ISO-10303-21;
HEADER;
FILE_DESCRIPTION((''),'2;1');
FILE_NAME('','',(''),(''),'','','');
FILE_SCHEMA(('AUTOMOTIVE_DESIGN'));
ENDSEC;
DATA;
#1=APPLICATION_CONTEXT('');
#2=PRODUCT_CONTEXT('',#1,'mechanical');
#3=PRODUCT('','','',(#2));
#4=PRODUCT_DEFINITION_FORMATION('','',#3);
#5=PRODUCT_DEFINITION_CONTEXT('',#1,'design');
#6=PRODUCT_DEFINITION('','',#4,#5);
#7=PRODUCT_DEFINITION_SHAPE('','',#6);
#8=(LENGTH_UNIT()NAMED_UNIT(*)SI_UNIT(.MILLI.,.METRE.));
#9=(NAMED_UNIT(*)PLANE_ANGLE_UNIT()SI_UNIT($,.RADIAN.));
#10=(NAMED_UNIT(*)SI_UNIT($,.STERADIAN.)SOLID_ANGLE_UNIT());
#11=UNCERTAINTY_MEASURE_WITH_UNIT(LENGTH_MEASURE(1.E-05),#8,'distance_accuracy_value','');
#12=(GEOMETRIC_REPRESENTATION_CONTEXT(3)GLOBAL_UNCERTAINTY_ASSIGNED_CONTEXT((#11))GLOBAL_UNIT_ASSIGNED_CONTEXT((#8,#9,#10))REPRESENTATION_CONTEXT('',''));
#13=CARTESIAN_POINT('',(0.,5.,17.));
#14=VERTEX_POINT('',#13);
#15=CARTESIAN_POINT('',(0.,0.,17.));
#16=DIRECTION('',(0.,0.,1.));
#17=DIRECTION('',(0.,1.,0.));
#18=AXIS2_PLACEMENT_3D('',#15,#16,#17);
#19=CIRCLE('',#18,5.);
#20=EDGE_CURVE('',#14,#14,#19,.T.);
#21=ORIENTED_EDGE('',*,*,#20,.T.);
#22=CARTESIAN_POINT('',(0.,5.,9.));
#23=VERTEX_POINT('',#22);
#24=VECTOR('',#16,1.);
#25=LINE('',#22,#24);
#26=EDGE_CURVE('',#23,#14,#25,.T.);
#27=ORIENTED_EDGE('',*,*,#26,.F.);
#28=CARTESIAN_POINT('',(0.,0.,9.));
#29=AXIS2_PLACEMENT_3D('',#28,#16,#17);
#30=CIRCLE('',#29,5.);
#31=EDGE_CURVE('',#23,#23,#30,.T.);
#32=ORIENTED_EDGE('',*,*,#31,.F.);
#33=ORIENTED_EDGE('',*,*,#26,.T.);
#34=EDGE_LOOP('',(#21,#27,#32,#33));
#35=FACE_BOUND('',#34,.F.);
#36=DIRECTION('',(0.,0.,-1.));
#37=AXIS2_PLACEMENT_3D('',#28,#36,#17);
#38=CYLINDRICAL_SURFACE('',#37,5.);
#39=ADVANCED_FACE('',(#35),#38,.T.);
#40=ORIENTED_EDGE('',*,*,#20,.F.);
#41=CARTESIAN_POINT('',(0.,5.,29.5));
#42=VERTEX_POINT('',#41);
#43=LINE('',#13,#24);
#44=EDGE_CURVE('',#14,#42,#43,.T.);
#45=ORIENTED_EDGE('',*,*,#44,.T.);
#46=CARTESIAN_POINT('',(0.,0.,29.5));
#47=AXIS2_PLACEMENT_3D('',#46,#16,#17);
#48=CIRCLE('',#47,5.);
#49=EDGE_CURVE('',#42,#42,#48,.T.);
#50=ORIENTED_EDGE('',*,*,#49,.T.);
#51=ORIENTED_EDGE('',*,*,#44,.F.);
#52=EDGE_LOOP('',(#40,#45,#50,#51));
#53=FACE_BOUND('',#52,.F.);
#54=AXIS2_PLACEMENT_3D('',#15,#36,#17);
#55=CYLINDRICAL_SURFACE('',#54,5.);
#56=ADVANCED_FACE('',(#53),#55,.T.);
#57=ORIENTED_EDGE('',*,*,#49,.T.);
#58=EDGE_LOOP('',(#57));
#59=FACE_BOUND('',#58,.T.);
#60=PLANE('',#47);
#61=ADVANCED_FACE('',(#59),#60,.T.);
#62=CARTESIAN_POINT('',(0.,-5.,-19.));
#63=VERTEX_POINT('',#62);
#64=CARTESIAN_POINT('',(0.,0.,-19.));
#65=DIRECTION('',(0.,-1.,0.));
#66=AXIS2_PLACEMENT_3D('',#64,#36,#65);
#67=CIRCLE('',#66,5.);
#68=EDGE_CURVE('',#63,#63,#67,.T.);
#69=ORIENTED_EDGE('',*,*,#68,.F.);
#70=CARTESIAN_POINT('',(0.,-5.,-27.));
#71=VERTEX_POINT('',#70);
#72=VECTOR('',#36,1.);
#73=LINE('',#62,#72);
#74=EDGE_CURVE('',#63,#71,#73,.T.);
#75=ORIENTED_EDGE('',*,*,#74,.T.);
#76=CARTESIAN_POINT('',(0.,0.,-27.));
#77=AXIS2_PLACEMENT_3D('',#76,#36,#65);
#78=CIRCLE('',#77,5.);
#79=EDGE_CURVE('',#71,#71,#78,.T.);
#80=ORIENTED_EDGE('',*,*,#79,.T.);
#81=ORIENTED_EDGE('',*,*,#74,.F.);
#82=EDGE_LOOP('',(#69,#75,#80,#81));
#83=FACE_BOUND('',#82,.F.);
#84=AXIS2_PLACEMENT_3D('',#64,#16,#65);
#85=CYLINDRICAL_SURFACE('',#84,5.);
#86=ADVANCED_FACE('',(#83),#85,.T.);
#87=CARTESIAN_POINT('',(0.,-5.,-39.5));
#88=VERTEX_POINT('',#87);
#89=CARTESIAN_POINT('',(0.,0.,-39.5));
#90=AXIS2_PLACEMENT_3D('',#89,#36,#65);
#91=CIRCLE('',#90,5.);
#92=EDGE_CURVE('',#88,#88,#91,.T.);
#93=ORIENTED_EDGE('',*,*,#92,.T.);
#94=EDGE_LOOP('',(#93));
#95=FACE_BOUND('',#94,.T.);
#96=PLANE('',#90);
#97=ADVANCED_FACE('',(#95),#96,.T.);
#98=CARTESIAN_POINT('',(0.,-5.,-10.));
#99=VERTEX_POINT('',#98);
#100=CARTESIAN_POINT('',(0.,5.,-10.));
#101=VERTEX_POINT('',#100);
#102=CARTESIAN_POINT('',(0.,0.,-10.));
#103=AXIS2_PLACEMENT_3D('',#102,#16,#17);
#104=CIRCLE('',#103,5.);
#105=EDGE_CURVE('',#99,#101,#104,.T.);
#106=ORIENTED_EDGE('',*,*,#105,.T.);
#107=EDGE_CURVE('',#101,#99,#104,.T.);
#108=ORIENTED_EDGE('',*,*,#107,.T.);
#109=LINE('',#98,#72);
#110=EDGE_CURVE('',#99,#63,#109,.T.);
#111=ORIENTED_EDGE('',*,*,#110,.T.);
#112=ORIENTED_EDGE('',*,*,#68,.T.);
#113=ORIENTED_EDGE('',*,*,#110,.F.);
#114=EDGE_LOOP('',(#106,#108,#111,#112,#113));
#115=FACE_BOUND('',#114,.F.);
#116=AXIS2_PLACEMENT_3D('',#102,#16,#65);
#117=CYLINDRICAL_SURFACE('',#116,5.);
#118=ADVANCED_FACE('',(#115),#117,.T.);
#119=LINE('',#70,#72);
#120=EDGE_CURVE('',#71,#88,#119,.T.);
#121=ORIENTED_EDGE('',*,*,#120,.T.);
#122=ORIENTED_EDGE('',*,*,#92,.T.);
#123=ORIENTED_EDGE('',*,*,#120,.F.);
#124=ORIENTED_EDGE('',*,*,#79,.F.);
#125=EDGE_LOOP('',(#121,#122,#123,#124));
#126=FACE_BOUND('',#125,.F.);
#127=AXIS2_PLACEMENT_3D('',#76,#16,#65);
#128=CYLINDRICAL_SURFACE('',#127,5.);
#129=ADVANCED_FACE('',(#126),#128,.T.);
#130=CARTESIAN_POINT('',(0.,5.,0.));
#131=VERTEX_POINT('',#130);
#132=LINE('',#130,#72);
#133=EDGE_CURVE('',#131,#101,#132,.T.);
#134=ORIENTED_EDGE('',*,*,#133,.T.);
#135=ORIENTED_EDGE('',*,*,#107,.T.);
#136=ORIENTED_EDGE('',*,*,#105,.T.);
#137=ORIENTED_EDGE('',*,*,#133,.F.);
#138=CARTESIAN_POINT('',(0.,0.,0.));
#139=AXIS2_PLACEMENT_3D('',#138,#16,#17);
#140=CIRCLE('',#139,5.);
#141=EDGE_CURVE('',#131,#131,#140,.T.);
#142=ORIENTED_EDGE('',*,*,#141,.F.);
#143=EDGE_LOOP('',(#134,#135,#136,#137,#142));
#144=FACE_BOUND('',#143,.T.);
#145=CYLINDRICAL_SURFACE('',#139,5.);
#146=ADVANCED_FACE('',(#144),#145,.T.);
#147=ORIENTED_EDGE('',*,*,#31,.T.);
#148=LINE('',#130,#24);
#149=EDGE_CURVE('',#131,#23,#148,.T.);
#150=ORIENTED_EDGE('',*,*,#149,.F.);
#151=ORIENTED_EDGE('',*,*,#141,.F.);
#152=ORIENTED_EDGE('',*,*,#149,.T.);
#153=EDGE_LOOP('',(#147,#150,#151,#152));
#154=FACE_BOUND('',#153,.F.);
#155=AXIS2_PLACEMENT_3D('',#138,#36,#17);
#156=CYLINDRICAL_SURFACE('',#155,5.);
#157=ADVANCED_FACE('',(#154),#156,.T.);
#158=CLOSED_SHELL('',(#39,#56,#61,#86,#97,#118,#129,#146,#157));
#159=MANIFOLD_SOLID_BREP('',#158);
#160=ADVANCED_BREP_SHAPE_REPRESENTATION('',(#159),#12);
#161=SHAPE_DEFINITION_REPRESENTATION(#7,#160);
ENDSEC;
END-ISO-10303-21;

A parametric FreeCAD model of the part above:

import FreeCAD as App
import Part
import Sketcher

doc = App.newDocument("Part")
params = doc.addObject("Spreadsheet::Sheet", "Params")
for row, (alias, value) in enumerate([
    ("sketch1_diameter", "10 mm"),
    ("pad1_length", "10 mm"),
    ("sketch2_diameter", "10 mm"),
    ("pad2_length", "9 mm"),
    ("sketch3_diameter", "10 mm"),
    ("pad3_length", "9 mm"),
    ("sketch4_diameter", "10 mm"),
    ("pad4_length", "8 mm"),
    ("sketch5_diameter", "10 mm"),
    ("pad5_length", "8 mm"),
    ("sketch6_diameter", "10 mm"),
    ("pad6_length", "12.5 mm"),
    ("sketch7_diameter", "10 mm"),
    ("pad7_length", "12.5 mm"),
], start=1):
    params.set(f"A{row}", alias)
    params.set(f"B{row}", "=" + value)
    params.setAlias(f"B{row}", alias)

body = doc.addObject("PartDesign::Body", "Body")

sketch1 = body.newObject("Sketcher::SketchObject", "Sketch")
sketch1.AttachmentSupport = (doc.getObject("XY_Plane"), [""])
sketch1.MapMode = "FlatFace"
sketch1.addGeometry(Part.Circle(App.Vector(0, 0, 0), App.Vector(0, 0, 1), 5), False)
sketch1.addConstraint([
    Sketcher.Constraint("Coincident", 0, 3, -1, 1),
    Sketcher.Constraint("Diameter", 0, 10.0),
])
sketch1.setExpression("Constraints[1]", "Params.sketch1_diameter")
pad1 = body.newObject("PartDesign::Pad", "Pad")
pad1.Profile = sketch1
pad1.setExpression("Length", "Params.pad1_length")
pad1.Reversed = True

sketch2 = body.newObject("Sketcher::SketchObject", "Sketch001")
sketch2.AttachmentSupport = (doc.getObject("XY_Plane"), [""])
sketch2.MapMode = "FlatFace"
sketch2.addGeometry(Part.Circle(App.Vector(0, 0, 0), App.Vector(0, 0, 1), 5), False)
sketch2.addConstraint([
    Sketcher.Constraint("Coincident", 0, 3, -1, 1),
    Sketcher.Constraint("Diameter", 0, 10.0),
])
sketch2.setExpression("Constraints[1]", "Params.sketch2_diameter")
pad2 = body.newObject("PartDesign::Pad", "Pad001")
pad2.Profile = sketch2
pad2.setExpression("Length", "Params.pad2_length")

sketch3 = body.newObject("Sketcher::SketchObject", "Sketch002")
sketch3.AttachmentSupport = (doc.getObject("XY_Plane"), [""])
sketch3.MapMode = "FlatFace"
sketch3.AttachmentOffset = App.Placement(App.Vector(0, 0, -10), App.Rotation())
sketch3.addGeometry(Part.Circle(App.Vector(0, 0, 0), App.Vector(0, 0, 1), 5), False)
sketch3.addConstraint([
    Sketcher.Constraint("Coincident", 0, 3, -1, 1),
    Sketcher.Constraint("Diameter", 0, 10.0),
])
sketch3.setExpression("Constraints[1]", "Params.sketch3_diameter")
pad3 = body.newObject("PartDesign::Pad", "Pad002")
pad3.Profile = sketch3
pad3.setExpression("Length", "Params.pad3_length")
pad3.Reversed = True

sketch4 = body.newObject("Sketcher::SketchObject", "Sketch003")
sketch4.AttachmentSupport = (doc.getObject("XY_Plane"), [""])
sketch4.MapMode = "FlatFace"
sketch4.AttachmentOffset = App.Placement(App.Vector(0, 0, 9), App.Rotation())
sketch4.addGeometry(Part.Circle(App.Vector(0, 0, 0), App.Vector(0, 0, 1), 5), False)
sketch4.addConstraint([
    Sketcher.Constraint("Coincident", 0, 3, -1, 1),
    Sketcher.Constraint("Diameter", 0, 10.0),
])
sketch4.setExpression("Constraints[1]", "Params.sketch4_diameter")
pad4 = body.newObject("PartDesign::Pad", "Pad003")
pad4.Profile = sketch4
pad4.setExpression("Length", "Params.pad4_length")

sketch5 = body.newObject("Sketcher::SketchObject", "Sketch004")
sketch5.AttachmentSupport = (doc.getObject("XY_Plane"), [""])
sketch5.MapMode = "FlatFace"
sketch5.AttachmentOffset = App.Placement(App.Vector(0, 0, -19), App.Rotation())
sketch5.addGeometry(Part.Circle(App.Vector(0, 0, 0), App.Vector(0, 0, 1), 5), False)
sketch5.addConstraint([
    Sketcher.Constraint("Coincident", 0, 3, -1, 1),
    Sketcher.Constraint("Diameter", 0, 10.0),
])
sketch5.setExpression("Constraints[1]", "Params.sketch5_diameter")
pad5 = body.newObject("PartDesign::Pad", "Pad004")
pad5.Profile = sketch5
pad5.setExpression("Length", "Params.pad5_length")
pad5.Reversed = True

sketch6 = body.newObject("Sketcher::SketchObject", "Sketch005")
sketch6.AttachmentSupport = (doc.getObject("XY_Plane"), [""])
sketch6.MapMode = "FlatFace"
sketch6.AttachmentOffset = App.Placement(App.Vector(0, 0, 17), App.Rotation())
sketch6.addGeometry(Part.Circle(App.Vector(0, 0, 0), App.Vector(0, 0, 1), 5), False)
sketch6.addConstraint([
    Sketcher.Constraint("Coincident", 0, 3, -1, 1),
    Sketcher.Constraint("Diameter", 0, 10.0),
])
sketch6.setExpression("Constraints[1]", "Params.sketch6_diameter")
pad6 = body.newObject("PartDesign::Pad", "Pad005")
pad6.Profile = sketch6
pad6.setExpression("Length", "Params.pad6_length")

sketch7 = body.newObject("Sketcher::SketchObject", "Sketch006")
sketch7.AttachmentSupport = (doc.getObject("XY_Plane"), [""])
sketch7.MapMode = "FlatFace"
sketch7.AttachmentOffset = App.Placement(App.Vector(0, 0, -27), App.Rotation())
sketch7.addGeometry(Part.Circle(App.Vector(0, 0, 0), App.Vector(0, 0, 1), 5), False)
sketch7.addConstraint([
    Sketcher.Constraint("Coincident", 0, 3, -1, 1),
    Sketcher.Constraint("Diameter", 0, 10.0),
])
sketch7.setExpression("Constraints[1]", "Params.sketch7_diameter")
pad7 = body.newObject("PartDesign::Pad", "Pad006")
pad7.Profile = sketch7
pad7.setExpression("Length", "Params.pad7_length")
pad7.Reversed = True

doc.recompute()
